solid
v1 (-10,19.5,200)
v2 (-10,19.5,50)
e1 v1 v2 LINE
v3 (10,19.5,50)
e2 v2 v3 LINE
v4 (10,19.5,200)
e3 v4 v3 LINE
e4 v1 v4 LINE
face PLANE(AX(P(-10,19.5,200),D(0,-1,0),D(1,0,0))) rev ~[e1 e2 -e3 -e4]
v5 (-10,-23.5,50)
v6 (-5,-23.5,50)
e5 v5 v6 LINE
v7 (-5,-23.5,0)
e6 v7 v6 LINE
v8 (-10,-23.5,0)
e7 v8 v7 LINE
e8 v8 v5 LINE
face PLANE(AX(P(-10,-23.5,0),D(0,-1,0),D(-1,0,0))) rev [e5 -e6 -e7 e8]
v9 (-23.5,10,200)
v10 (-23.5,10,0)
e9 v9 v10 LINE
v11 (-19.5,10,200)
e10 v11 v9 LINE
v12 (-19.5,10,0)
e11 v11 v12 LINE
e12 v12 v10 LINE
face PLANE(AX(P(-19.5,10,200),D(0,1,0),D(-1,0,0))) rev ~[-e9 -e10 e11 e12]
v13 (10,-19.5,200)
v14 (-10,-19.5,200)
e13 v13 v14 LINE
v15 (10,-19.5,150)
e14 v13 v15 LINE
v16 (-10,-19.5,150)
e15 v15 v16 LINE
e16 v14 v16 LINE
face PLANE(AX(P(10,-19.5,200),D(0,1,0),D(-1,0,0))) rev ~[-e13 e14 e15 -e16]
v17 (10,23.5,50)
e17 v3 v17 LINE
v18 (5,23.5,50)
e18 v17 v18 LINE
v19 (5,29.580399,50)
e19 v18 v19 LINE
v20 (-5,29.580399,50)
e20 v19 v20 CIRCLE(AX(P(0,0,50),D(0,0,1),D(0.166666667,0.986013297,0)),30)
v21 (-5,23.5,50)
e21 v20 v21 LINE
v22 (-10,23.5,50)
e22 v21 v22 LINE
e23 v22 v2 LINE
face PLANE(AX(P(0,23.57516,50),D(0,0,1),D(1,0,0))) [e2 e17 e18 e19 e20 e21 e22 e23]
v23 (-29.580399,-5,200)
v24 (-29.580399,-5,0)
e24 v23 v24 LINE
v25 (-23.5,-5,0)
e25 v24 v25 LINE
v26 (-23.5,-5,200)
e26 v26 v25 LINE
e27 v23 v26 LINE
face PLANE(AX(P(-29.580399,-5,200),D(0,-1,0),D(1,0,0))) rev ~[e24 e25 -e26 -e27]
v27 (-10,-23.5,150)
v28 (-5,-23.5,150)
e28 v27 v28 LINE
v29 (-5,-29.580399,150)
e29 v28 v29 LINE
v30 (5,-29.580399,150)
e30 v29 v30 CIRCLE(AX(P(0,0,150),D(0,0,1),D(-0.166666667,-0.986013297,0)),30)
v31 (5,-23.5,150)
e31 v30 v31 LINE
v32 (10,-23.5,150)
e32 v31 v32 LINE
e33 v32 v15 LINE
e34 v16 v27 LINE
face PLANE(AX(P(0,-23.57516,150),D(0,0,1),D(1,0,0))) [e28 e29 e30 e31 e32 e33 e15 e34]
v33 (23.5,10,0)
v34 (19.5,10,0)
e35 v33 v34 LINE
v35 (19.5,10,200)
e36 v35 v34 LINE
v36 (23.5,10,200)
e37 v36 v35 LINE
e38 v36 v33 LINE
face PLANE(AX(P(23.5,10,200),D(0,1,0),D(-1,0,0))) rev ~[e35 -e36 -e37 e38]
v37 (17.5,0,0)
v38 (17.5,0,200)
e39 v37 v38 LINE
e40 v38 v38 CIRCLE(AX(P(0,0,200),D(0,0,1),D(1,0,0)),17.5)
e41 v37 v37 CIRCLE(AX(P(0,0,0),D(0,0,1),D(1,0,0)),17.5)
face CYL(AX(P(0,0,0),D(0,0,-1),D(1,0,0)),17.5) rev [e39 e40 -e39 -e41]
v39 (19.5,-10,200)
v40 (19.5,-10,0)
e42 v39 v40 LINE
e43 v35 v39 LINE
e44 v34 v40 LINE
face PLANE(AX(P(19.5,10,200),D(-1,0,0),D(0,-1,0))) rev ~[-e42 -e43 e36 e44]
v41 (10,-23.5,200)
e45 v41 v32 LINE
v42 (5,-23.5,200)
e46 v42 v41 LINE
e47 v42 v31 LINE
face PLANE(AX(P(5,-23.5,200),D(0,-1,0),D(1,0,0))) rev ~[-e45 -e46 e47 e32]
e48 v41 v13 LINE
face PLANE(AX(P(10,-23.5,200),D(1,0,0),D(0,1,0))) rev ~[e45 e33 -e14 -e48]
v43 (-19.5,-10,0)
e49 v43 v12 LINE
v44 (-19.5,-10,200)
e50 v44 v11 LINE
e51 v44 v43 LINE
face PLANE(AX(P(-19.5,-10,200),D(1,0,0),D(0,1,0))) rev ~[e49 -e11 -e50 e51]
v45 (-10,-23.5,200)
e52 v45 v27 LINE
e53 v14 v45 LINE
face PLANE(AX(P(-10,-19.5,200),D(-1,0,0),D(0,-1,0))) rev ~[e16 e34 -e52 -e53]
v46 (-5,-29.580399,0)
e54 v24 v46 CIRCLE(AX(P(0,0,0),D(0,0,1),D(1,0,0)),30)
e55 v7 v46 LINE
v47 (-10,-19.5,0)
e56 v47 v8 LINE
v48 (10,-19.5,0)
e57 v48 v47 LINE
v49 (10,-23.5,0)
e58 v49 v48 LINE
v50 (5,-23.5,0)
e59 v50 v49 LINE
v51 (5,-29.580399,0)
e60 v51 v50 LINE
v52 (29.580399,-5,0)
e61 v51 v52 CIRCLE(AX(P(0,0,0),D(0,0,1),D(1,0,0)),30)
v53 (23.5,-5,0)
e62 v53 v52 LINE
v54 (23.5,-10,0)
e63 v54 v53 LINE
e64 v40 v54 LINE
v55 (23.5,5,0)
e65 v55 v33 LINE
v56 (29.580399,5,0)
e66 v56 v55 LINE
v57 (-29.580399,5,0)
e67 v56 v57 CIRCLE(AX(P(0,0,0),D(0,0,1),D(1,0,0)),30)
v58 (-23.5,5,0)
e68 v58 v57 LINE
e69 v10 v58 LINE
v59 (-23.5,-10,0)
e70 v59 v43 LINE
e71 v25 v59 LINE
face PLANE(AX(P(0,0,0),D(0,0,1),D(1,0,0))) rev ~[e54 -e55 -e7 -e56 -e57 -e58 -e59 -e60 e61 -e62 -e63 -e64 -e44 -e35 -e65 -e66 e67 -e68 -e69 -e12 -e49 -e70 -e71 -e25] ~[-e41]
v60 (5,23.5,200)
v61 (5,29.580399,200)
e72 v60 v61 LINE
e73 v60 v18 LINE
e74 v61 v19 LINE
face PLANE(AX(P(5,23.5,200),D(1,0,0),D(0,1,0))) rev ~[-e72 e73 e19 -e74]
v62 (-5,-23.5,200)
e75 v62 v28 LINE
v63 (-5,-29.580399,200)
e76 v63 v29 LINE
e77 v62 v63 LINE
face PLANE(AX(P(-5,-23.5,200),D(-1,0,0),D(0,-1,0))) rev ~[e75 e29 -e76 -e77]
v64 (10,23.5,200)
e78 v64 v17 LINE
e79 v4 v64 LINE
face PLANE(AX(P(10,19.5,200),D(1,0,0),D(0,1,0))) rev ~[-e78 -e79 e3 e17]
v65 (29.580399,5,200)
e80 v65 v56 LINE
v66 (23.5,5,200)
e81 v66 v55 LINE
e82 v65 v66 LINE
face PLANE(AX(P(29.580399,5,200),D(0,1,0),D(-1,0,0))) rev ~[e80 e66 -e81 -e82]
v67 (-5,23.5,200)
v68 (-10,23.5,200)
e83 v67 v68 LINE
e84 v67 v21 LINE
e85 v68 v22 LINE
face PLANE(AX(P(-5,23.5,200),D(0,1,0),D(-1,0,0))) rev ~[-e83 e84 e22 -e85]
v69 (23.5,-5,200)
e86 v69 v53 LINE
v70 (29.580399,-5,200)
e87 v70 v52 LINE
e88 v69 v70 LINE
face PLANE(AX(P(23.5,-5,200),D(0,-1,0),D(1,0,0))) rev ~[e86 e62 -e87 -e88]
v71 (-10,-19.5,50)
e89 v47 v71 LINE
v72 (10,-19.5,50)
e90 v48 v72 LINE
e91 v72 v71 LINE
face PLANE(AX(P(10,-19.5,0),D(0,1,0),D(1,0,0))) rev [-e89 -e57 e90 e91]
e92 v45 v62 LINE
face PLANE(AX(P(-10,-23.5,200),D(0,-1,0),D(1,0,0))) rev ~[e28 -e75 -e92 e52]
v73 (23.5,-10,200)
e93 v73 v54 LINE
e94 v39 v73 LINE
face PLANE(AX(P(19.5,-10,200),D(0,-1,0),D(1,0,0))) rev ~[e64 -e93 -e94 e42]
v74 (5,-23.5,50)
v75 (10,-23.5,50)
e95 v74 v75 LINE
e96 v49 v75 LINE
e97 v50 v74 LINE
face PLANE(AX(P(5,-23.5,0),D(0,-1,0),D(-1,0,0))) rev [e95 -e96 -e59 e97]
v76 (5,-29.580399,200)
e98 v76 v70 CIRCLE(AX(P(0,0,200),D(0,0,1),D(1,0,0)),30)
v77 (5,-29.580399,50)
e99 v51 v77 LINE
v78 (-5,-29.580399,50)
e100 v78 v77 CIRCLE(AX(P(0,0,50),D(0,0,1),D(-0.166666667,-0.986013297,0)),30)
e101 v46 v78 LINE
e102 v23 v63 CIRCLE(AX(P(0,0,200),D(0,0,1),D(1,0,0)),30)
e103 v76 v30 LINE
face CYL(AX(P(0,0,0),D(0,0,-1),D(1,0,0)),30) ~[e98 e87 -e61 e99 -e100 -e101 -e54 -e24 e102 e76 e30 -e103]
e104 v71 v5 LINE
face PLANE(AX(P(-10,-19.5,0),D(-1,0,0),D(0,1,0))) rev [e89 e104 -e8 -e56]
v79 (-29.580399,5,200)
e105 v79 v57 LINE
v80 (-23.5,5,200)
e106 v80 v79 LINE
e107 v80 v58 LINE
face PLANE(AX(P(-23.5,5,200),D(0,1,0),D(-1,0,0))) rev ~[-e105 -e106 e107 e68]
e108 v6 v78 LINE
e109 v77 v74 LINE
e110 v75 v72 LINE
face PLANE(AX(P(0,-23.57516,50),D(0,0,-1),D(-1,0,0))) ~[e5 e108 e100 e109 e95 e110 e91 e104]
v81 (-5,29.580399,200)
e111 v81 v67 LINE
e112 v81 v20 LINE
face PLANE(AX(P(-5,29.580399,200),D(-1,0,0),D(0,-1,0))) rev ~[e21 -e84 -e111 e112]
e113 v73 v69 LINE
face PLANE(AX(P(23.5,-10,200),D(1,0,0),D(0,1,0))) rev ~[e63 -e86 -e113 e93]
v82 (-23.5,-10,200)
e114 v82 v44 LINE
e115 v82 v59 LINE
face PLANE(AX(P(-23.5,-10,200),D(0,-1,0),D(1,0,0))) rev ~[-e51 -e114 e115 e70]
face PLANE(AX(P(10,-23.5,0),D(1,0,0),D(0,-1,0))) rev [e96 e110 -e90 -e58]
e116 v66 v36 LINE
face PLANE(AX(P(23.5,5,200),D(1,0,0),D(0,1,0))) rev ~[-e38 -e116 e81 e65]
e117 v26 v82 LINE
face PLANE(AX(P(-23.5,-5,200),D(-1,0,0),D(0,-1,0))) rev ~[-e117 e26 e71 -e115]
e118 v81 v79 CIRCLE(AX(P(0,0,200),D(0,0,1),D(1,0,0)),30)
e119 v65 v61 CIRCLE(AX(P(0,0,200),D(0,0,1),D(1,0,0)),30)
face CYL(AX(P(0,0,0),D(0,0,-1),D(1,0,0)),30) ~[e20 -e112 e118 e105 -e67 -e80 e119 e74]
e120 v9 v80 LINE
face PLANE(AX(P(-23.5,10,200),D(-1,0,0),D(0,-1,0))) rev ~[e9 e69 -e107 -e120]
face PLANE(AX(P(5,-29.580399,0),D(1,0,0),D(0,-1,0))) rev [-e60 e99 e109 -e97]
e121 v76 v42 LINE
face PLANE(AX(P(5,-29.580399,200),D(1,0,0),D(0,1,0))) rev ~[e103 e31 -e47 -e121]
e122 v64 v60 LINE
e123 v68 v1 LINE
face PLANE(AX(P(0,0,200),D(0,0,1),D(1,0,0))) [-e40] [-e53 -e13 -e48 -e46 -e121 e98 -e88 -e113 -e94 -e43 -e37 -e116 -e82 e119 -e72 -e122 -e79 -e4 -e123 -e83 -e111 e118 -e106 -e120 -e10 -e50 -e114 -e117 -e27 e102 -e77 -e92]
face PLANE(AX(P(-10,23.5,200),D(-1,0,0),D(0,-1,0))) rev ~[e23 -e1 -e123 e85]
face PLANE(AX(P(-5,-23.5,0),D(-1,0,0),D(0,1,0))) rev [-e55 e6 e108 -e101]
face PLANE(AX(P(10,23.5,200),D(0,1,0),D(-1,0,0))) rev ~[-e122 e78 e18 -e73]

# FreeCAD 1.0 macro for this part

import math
import FreeCAD as App
import Part
import Sketcher

V = App.Vector
Q = App.Units.Quantity

doc = App.newDocument("Part")
body = doc.addObject("PartDesign::Body", "Body")

# Sketch on XY plane
sketch1 = body.newObject("Sketcher::SketchObject", "Sketch")
sketch1.AttachmentSupport = (doc.getObject("XY_Plane"), [""])
sketch1.MapMode = "FlatFace"
sketch1.addGeometry(Part.Circle(V(0, 0, 0), V(0, 0, 1), 30), False)
sketch1.addGeometry(Part.Circle(V(0, 0, 0), V(0, 0, 1), 17.5), False)
sketch1.addConstraint(Sketcher.Constraint("Coincident", 0, 3, -1, 1))
sketch1.addConstraint(Sketcher.Constraint("Coincident", 1, 3, -1, 1))
sketch1.addConstraint(Sketcher.Constraint("Diameter", 0, Q("60 mm")))
sketch1.addConstraint(Sketcher.Constraint("Diameter", 1, Q("35 mm")))
pad1 = body.newObject("PartDesign::Pad", "Pad")
pad1.Profile = sketch1
pad1.Length = 200

# Sketch on XY plane
sketch2 = body.newObject("Sketcher::SketchObject", "Sketch001")
sketch2.AttachmentSupport = (doc.getObject("XY_Plane"), [""])
sketch2.MapMode = "FlatFace"
sketch2.AttachmentOffset = App.Placement(V(0, 0, 200), App.Rotation())
sketch2.addGeometry(Part.LineSegment(V(-10, 23.5, 0), V(-10, 19.5, 0)), False)
sketch2.addGeometry(Part.LineSegment(V(-10, 19.5, 0), V(10, 19.5, 0)), False)
sketch2.addGeometry(Part.LineSegment(V(10, 19.5, 0), V(10, 23.5, 0)), False)
sketch2.addGeometry(Part.LineSegment(V(10, 23.5, 0), V(5, 23.5, 0)), False)
sketch2.addGeometry(Part.LineSegment(V(5, 23.5, 0), V(5, 29.580399, 0)), False)
sketch2.addGeometry(Part.ArcOfCircle(Part.Circle(V(0, 0, 0), V(0, 0, 1), 30), math.radians(80.405932), math.radians(99.594068)), False)
sketch2.addGeometry(Part.LineSegment(V(-5, 29.580399, 0), V(-5, 23.5, 0)), False)
sketch2.addGeometry(Part.LineSegment(V(-5, 23.5, 0), V(-10, 23.5, 0)), False)
sketch2.addConstraint(Sketcher.Constraint("Coincident", 0, 2, 1, 1))
sketch2.addConstraint(Sketcher.Constraint("Coincident", 1, 2, 2, 1))
sketch2.addConstraint(Sketcher.Constraint("Coincident", 2, 2, 3, 1))
sketch2.addConstraint(Sketcher.Constraint("Coincident", 3, 2, 4, 1))
sketch2.addConstraint(Sketcher.Constraint("Coincident", 4, 2, 5, 1))
sketch2.addConstraint(Sketcher.Constraint("Coincident", 5, 2, 6, 1))
sketch2.addConstraint(Sketcher.Constraint("Coincident", 6, 2, 7, 1))
sketch2.addConstraint(Sketcher.Constraint("Coincident", 7, 2, 0, 1))
sketch2.addConstraint(Sketcher.Constraint("Vertical", 0))
sketch2.addConstraint(Sketcher.Constraint("Horizontal", 1))
sketch2.addConstraint(Sketcher.Constraint("Vertical", 2))
sketch2.addConstraint(Sketcher.Constraint("Horizontal", 3))
sketch2.addConstraint(Sketcher.Constraint("Vertical", 4))
sketch2.addConstraint(Sketcher.Constraint("Vertical", 6))
sketch2.addConstraint(Sketcher.Constraint("Horizontal", 7))
sketch2.addConstraint(Sketcher.Constraint("Coincident", 5, 3, -1, 1))
sketch2.addConstraint(Sketcher.Constraint("Symmetric", 3, 2, 6, 2, -2))
sketch2.addConstraint(Sketcher.Constraint("Equal", 3, 7))
sketch2.addConstraint(Sketcher.Constraint("Radius", 5, Q("30 mm")))
sketch2.addConstraint(Sketcher.Constraint("DistanceX", 1, 1, 1, 2, Q("20 mm")))
sketch2.addConstraint(Sketcher.Constraint("DistanceX", 3, 2, 3, 1, Q("5 mm")))
sketch2.addConstraint(Sketcher.Constraint("DistanceY", 0, 2, 0, 1, Q("4 mm")))
sketch2.addConstraint(Sketcher.Constraint("DistanceY", -1, 1, 0, 2, Q("19.5 mm")))
pocket1 = body.newObject("PartDesign::Pocket", "Pocket")
pocket1.Profile = sketch2
pocket1.Length = 150

# Sketch on XY plane
sketch3 = body.newObject("Sketcher::SketchObject", "Sketch002")
sketch3.AttachmentSupport = (doc.getObject("XY_Plane"), [""])
sketch3.MapMode = "FlatFace"
sketch3.AttachmentOffset = App.Placement(V(0, 0, 200), App.Rotation())
sketch3.addGeometry(Part.LineSegment(V(-5, -23.5, 0), V(-5, -29.580399, 0)), False)
sketch3.addGeometry(Part.ArcOfCircle(Part.Circle(V(0, 0, 0), V(0, 0, 1), 30), math.radians(-99.594068), math.radians(-80.405932)), False)
sketch3.addGeometry(Part.LineSegment(V(5, -29.580399, 0), V(5, -23.5, 0)), False)
sketch3.addGeometry(Part.LineSegment(V(5, -23.5, 0), V(10, -23.5, 0)), False)
sketch3.addGeometry(Part.LineSegment(V(10, -23.5, 0), V(10, -19.5, 0)), False)
sketch3.addGeometry(Part.LineSegment(V(10, -19.5, 0), V(-10, -19.5, 0)), False)
sketch3.addGeometry(Part.LineSegment(V(-10, -19.5, 0), V(-10, -23.5, 0)), False)
sketch3.addGeometry(Part.LineSegment(V(-10, -23.5, 0), V(-5, -23.5, 0)), False)
sketch3.addConstraint(Sketcher.Constraint("Coincident", 0, 2, 1, 1))
sketch3.addConstraint(Sketcher.Constraint("Coincident", 1, 2, 2, 1))
sketch3.addConstraint(Sketcher.Constraint("Coincident", 2, 2, 3, 1))
sketch3.addConstraint(Sketcher.Constraint("Coincident", 3, 2, 4, 1))
sketch3.addConstraint(Sketcher.Constraint("Coincident", 4, 2, 5, 1))
sketch3.addConstraint(Sketcher.Constraint("Coincident", 5, 2, 6, 1))
sketch3.addConstraint(Sketcher.Constraint("Coincident", 6, 2, 7, 1))
sketch3.addConstraint(Sketcher.Constraint("Coincident", 7, 2, 0, 1))
sketch3.addConstraint(Sketcher.Constraint("Vertical", 0))
sketch3.addConstraint(Sketcher.Constraint("Vertical", 2))
sketch3.addConstraint(Sketcher.Constraint("Horizontal", 3))
sketch3.addConstraint(Sketcher.Constraint("Vertical", 4))
sketch3.addConstraint(Sketcher.Constraint("Horizontal", 5))
sketch3.addConstraint(Sketcher.Constraint("Vertical", 6))
sketch3.addConstraint(Sketcher.Constraint("Horizontal", 7))
sketch3.addConstraint(Sketcher.Constraint("Coincident", 1, 3, -1, 1))
sketch3.addConstraint(Sketcher.Constraint("Symmetric", 3, 2, 6, 2, -2))
sketch3.addConstraint(Sketcher.Constraint("Horizontal", 0, 2, 1, 2))
sketch3.addConstraint(Sketcher.Constraint("Radius", 1, Q("30 mm")))
sketch3.addConstraint(Sketcher.Constraint("DistanceX", 3, 1, 3, 2, Q("5 mm")))
sketch3.addConstraint(Sketcher.Constraint("DistanceX", 5, 2, 5, 1, Q("20 mm")))
sketch3.addConstraint(Sketcher.Constraint("DistanceY", 4, 1, 4, 2, Q("4 mm")))
sketch3.addConstraint(Sketcher.Constraint("DistanceY", 2, 2, -1, 1, Q("23.5 mm")))
pocket2 = body.newObject("PartDesign::Pocket", "Pocket001")
pocket2.Profile = sketch3
pocket2.Length = 50
doc.recompute()

datumplane = body.newObject("PartDesign::Plane", "DatumPlane")
datumplane.AttachmentSupport = (doc.getObject("XY_Plane"), [""])
datumplane.MapMode = "FlatFace"
datumplane.AttachmentOffset = App.Placement(V(0, 0, 100), App.Rotation())
mirrored = body.newObject("PartDesign::Mirrored", "Mirrored")
mirrored.Originals = [pocket2]
mirrored.MirrorPlane = (datumplane, [""])
body.Tip = mirrored

# Sketch on XY plane
sketch4 = body.newObject("Sketcher::SketchObject", "Sketch003")
sketch4.AttachmentSupport = (doc.getObject("XY_Plane"), [""])
sketch4.MapMode = "FlatFace"
sketch4.AttachmentOffset = App.Placement(V(0, 0, 200), App.Rotation())
sketch4.addGeometry(Part.LineSegment(V(-23.5, 5, 0), V(-29.580399, 5, 0)), False)
sketch4.addGeometry(Part.ArcOfCircle(Part.Circle(V(0, 0, 0), V(0, 0, 1), 30), math.radians(170.405932), math.radians(189.594068)), False)
sketch4.addGeometry(Part.LineSegment(V(-29.580399, -5, 0), V(-23.5, -5, 0)), False)
sketch4.addGeometry(Part.LineSegment(V(-23.5, -5, 0), V(-23.5, -10, 0)), False)
sketch4.addGeometry(Part.LineSegment(V(-23.5, -10, 0), V(-19.5, -10, 0)), False)
sketch4.addGeometry(Part.LineSegment(V(-19.5, -10, 0), V(-19.5, 10, 0)), False)
sketch4.addGeometry(Part.LineSegment(V(-19.5, 10, 0), V(-23.5, 10, 0)), False)
sketch4.addGeometry(Part.LineSegment(V(-23.5, 10, 0), V(-23.5, 5, 0)), False)
sketch4.addGeometry(Part.ArcOfCircle(Part.Circle(V(0, 0, 0), V(0, 0, 1), 30), math.radians(0), math.radians(9.594068)), False)
sketch4.addGeometry(Part.LineSegment(V(29.580399, 5, 0), V(23.5, 5, 0)), False)
sketch4.addGeometry(Part.LineSegment(V(23.5, 5, 0), V(23.5, 10, 0)), False)
sketch4.addGeometry(Part.LineSegment(V(23.5, 10, 0), V(19.5, 10, 0)), False)
sketch4.addGeometry(Part.LineSegment(V(19.5, 10, 0), V(19.5, -10, 0)), False)
sketch4.addGeometry(Part.LineSegment(V(19.5, -10, 0), V(23.5, -10, 0)), False)
sketch4.addGeometry(Part.LineSegment(V(23.5, -10, 0), V(23.5, -5, 0)), False)
sketch4.addGeometry(Part.LineSegment(V(23.5, -5, 0), V(29.580399, -5, 0)), False)
sketch4.addGeometry(Part.ArcOfCircle(Part.Circle(V(0, 0, 0), V(0, 0, 1), 30), math.radians(-9.594068), math.radians(0)), False)
sketch4.addConstraint(Sketcher.Constraint("Coincident", 0, 2, 1, 1))
sketch4.addConstraint(Sketcher.Constraint("Coincident", 1, 2, 2, 1))
sketch4.addConstraint(Sketcher.Constraint("Coincident", 2, 2, 3, 1))
sketch4.addConstraint(Sketcher.Constraint("Coincident", 3, 2, 4, 1))
sketch4.addConstraint(Sketcher.Constraint("Coincident", 4, 2, 5, 1))
sketch4.addConstraint(Sketcher.Constraint("Coincident", 5, 2, 6, 1))
sketch4.addConstraint(Sketcher.Constraint("Coincident", 6, 2, 7, 1))
sketch4.addConstraint(Sketcher.Constraint("Coincident", 7, 2, 0, 1))
sketch4.addConstraint(Sketcher.Constraint("Coincident", 8, 2, 9, 1))
sketch4.addConstraint(Sketcher.Constraint("Coincident", 9, 2, 10, 1))
sketch4.addConstraint(Sketcher.Constraint("Coincident", 10, 2, 11, 1))
sketch4.addConstraint(Sketcher.Constraint("Coincident", 11, 2, 12, 1))
sketch4.addConstraint(Sketcher.Constraint("Coincident", 12, 2, 13, 1))
sketch4.addConstraint(Sketcher.Constraint("Coincident", 13, 2, 14, 1))
sketch4.addConstraint(Sketcher.Constraint("Coincident", 14, 2, 15, 1))
sketch4.addConstraint(Sketcher.Constraint("Coincident", 15, 2, 16, 1))
sketch4.addConstraint(Sketcher.Constraint("Tangent", 16, 2, 8, 1))
sketch4.addConstraint(Sketcher.Constraint("Horizontal", 0))
sketch4.addConstraint(Sketcher.Constraint("Horizontal", 2))
sketch4.addConstraint(Sketcher.Constraint("Vertical", 3))
sketch4.addConstraint(Sketcher.Constraint("Horizontal", 4))
sketch4.addConstraint(Sketcher.Constraint("Vertical", 5))
sketch4.addConstraint(Sketcher.Constraint("Horizontal", 6))
sketch4.addConstraint(Sketcher.Constraint("Vertical", 7))
sketch4.addConstraint(Sketcher.Constraint("Horizontal", 9))
sketch4.addConstraint(Sketcher.Constraint("Vertical", 10))
sketch4.addConstraint(Sketcher.Constraint("Horizontal", 11))
sketch4.addConstraint(Sketcher.Constraint("Vertical", 12))
sketch4.addConstraint(Sketcher.Constraint("Horizontal", 13))
sketch4.addConstraint(Sketcher.Constraint("Vertical", 14))
sketch4.addConstraint(Sketcher.Constraint("Horizontal", 15))
sketch4.addConstraint(Sketcher.Constraint("Coincident", 1, 3, -1, 1))
sketch4.addConstraint(Sketcher.Constraint("Coincident", 8, 3, -1, 1))
sketch4.addConstraint(Sketcher.Constraint("Equal", 1, 8))
sketch4.addConstraint(Sketcher.Constraint("Equal", 8, 16))
sketch4.addConstraint(Sketcher.Constraint("Symmetric", 2, 2, 9, 2, -1, 1))
sketch4.addConstraint(Sketcher.Constraint("Symmetric", 4, 2, 11, 2, -1, 1))
sketch4.addConstraint(Sketcher.Constraint("Symmetric", 6, 2, 13, 2, -1, 1))
sketch4.addConstraint(Sketcher.Constraint("Symmetric", 7, 2, 9, 2, -2))
sketch4.addConstraint(Sketcher.Constraint("PointOnObject", 16, 2, -1))
sketch4.addConstraint(Sketcher.Constraint("Horizontal", 6, 2, 10, 2))
sketch4.addConstraint(Sketcher.Constraint("Horizontal", 2, 2, 14, 2))
sketch4.addConstraint(Sketcher.Constraint("Radius", 1, Q("30 mm")))
sketch4.addConstraint(Sketcher.Constraint("DistanceX", 4, 1, 4, 2, Q("4 mm")))
sketch4.addConstraint(Sketcher.Constraint("DistanceY", 3, 2, 3, 1, Q("5 mm")))
sketch4.addConstraint(Sketcher.Constraint("DistanceY", 5, 1, 5, 2, Q("20 mm")))
sketch4.addConstraint(Sketcher.Constraint("DistanceX", 5, 2, 9, 2, Q("43 mm")))
pocket3 = body.newObject("PartDesign::Pocket", "Pocket002")
pocket3.Profile = sketch4
pocket3.Type = "ThroughAll"

doc.recompute()
